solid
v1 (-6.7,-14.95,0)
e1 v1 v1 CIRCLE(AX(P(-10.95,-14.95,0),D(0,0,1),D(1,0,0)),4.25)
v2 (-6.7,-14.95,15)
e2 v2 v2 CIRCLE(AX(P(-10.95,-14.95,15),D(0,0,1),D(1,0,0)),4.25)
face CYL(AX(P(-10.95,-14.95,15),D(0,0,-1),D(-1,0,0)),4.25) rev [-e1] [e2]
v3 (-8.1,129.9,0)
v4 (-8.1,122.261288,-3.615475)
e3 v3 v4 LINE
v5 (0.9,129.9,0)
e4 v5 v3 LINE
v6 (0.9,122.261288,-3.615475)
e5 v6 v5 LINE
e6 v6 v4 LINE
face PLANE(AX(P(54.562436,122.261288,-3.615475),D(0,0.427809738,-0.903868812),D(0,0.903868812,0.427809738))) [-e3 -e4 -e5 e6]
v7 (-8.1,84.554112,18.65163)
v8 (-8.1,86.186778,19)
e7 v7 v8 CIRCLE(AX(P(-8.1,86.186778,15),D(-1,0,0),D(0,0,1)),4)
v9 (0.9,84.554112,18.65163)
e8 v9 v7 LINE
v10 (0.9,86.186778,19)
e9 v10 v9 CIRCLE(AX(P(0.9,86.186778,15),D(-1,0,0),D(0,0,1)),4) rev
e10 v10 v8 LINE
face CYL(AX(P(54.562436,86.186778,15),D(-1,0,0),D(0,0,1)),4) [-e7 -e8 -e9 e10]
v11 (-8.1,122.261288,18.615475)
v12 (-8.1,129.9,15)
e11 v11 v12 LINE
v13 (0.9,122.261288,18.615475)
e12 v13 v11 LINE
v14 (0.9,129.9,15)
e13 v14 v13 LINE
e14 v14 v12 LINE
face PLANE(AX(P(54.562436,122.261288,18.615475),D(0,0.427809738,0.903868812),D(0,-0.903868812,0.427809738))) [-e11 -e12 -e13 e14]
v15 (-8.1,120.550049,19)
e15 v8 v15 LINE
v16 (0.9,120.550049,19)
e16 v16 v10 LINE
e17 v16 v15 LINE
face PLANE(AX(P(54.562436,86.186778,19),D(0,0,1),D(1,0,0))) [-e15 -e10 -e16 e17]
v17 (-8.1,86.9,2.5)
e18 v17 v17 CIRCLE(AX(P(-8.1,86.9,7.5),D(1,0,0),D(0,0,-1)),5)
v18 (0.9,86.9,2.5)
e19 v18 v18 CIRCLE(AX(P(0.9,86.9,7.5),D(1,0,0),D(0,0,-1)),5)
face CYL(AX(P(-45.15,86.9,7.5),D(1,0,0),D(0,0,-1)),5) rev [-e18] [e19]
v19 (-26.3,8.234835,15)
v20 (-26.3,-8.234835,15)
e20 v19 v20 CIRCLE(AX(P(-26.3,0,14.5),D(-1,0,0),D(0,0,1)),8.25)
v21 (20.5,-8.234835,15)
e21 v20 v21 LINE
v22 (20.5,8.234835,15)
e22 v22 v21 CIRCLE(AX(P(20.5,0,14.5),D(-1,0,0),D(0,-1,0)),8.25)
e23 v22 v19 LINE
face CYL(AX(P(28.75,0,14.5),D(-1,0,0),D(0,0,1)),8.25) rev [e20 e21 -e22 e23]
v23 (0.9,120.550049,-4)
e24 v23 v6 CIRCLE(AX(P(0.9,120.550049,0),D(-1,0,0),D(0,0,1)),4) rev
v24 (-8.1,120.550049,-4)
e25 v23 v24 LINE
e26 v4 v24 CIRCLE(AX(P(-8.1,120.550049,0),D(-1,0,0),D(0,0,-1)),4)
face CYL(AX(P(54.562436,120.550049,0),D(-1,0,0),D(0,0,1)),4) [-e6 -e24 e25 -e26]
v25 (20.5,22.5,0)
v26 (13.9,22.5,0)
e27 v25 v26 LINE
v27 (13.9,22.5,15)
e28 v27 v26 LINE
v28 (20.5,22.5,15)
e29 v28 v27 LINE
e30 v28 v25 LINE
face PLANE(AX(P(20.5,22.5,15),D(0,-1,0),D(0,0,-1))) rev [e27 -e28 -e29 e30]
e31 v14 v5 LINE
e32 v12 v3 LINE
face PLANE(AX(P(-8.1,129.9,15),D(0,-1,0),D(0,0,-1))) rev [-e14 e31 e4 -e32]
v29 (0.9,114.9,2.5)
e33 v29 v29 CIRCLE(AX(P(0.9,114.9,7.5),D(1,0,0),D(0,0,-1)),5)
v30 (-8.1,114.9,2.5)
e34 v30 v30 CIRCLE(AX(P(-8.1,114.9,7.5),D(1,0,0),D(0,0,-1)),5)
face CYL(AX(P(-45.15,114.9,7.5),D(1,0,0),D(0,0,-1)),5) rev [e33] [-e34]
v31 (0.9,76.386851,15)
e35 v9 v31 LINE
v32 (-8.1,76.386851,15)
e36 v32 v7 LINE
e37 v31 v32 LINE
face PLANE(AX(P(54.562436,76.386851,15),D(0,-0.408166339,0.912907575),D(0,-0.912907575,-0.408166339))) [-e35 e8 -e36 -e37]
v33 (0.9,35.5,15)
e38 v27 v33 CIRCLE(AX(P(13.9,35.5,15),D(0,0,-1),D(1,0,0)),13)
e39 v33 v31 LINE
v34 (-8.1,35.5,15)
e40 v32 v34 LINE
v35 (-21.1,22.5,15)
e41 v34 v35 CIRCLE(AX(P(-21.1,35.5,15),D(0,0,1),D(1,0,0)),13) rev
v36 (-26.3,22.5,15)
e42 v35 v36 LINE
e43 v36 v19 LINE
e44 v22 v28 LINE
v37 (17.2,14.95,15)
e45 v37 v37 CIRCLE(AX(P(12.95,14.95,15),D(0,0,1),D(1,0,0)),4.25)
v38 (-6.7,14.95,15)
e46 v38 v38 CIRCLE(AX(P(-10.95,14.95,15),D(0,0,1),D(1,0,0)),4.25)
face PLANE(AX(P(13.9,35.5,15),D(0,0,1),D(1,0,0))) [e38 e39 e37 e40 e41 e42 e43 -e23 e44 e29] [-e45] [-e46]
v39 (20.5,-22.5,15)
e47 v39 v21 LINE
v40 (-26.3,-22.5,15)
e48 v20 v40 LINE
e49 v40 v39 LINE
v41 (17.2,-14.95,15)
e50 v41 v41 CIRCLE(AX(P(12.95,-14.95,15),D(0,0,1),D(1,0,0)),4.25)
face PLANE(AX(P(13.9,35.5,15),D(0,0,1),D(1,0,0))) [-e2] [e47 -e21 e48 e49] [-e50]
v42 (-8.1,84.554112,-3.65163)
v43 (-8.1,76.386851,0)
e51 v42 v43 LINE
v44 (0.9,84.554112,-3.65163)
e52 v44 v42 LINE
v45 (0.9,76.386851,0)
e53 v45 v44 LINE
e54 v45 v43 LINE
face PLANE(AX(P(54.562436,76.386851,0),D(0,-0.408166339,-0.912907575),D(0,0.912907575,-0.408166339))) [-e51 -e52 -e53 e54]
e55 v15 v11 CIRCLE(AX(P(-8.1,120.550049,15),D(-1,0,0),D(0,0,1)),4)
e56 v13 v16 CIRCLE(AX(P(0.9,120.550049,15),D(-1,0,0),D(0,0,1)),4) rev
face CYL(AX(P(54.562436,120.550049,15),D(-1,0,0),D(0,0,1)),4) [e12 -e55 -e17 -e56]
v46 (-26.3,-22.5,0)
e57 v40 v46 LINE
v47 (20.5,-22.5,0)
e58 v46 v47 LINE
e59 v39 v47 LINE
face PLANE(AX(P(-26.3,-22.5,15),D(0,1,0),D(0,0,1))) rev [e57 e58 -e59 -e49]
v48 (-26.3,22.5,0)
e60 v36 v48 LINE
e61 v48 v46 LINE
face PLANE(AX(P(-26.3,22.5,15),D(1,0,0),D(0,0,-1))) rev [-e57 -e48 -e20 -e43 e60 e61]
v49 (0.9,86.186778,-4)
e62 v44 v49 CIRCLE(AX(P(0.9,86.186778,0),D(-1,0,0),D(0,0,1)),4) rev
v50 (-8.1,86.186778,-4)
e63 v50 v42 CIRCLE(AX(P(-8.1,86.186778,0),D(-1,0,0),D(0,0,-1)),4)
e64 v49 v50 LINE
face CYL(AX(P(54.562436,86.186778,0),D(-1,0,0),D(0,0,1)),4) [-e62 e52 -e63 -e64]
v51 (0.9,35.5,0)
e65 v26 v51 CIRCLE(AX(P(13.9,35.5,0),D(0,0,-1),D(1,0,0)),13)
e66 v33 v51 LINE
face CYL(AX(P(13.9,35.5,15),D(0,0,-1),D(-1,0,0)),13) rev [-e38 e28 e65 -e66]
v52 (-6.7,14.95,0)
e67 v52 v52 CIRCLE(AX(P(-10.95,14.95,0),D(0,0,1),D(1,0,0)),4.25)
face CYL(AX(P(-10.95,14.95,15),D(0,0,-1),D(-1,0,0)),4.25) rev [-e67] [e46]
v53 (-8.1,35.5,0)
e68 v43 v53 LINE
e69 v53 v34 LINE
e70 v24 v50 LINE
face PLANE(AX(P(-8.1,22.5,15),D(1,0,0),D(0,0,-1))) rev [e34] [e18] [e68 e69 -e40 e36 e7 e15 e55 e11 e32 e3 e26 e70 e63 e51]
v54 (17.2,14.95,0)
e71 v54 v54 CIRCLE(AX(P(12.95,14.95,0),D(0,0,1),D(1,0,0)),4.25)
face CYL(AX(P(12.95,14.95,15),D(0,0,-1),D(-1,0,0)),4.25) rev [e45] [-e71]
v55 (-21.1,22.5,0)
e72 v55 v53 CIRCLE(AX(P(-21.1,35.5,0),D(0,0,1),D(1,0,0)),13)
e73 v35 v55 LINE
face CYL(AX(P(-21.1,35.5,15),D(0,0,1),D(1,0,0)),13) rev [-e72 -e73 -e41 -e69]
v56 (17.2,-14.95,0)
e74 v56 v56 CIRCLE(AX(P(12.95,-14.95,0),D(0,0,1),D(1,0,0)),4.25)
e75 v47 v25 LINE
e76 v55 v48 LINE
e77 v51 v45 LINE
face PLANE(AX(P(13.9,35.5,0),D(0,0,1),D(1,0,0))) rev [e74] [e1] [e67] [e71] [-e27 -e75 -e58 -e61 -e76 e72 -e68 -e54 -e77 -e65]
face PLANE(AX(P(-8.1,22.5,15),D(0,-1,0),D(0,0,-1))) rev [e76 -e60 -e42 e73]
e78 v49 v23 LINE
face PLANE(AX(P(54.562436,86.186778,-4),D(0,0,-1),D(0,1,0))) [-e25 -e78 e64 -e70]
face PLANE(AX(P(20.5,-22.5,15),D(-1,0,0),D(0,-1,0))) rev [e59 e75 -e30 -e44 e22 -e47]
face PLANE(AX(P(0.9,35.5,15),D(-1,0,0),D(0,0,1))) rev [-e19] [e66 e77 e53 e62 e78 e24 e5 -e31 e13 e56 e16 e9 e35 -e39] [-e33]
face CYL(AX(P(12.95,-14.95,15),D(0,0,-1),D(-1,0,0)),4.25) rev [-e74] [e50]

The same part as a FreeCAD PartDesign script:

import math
import FreeCAD as App
import Part
import Sketcher
from FreeCAD import Vector
Q = App.Units.Quantity


def edges_at(feature, points):
    """Names of the edges that pass closest to the given points."""
    edges = feature.Shape.Edges
    near = lambda p: min(range(len(edges)), key=lambda i: edges[i].distToShape(Part.Vertex(*p))[0])
    return sorted({f"Edge{near(p) + 1}" for p in points})

doc = App.newDocument("Part")
body = doc.addObject("PartDesign::Body", "Body")

# Sketch on XY plane
sketch1 = body.newObject("Sketcher::SketchObject", "Sketch")
sketch1.AttachmentSupport = (doc.getObject("XY_Plane"), [""])
sketch1.MapMode = "FlatFace"
sketch1.addGeometry(Part.LineSegment(Vector(-8.1, 129.9, 0), Vector(-8.1, 22.5, 0)), False)
sketch1.addGeometry(Part.LineSegment(Vector(-8.1, 22.5, 0), Vector(-26.3, 22.5, 0)), False)
sketch1.addGeometry(Part.LineSegment(Vector(-26.3, 22.5, 0), Vector(-26.3, -22.5, 0)), False)
sketch1.addGeometry(Part.LineSegment(Vector(-26.3, -22.5, 0), Vector(20.5, -22.5, 0)), False)
sketch1.addGeometry(Part.LineSegment(Vector(20.5, -22.5, 0), Vector(20.5, 22.5, 0)), False)
sketch1.addGeometry(Part.LineSegment(Vector(20.5, 22.5, 0), Vector(13.9, 22.5, 0)), False)
sketch1.addGeometry(Part.ArcOfCircle(Part.Circle(Vector(13.9, 35.5, 0), Vector(0, 0, 1), 13), math.radians(-180), math.radians(-90)), False)
sketch1.addGeometry(Part.LineSegment(Vector(0.9, 35.5, 0), Vector(0.9, 129.9, 0)), False)
sketch1.addGeometry(Part.LineSegment(Vector(0.9, 129.9, 0), Vector(-8.1, 129.9, 0)), False)
sketch1.addGeometry(Part.Circle(Vector(12.95, -14.95, 0), Vector(0, 0, 1), 4.25), False)
sketch1.addGeometry(Part.Circle(Vector(-10.95, -14.95, 0), Vector(0, 0, 1), 4.25), False)
sketch1.addGeometry(Part.Circle(Vector(12.95, 14.95, 0), Vector(0, 0, 1), 4.25), False)
sketch1.addGeometry(Part.Circle(Vector(-10.95, 14.95, 0), Vector(0, 0, 1), 4.25), False)
sketch1.addConstraint(Sketcher.Constraint("Coincident", 0, 2, 1, 1))
sketch1.addConstraint(Sketcher.Constraint("Coincident", 1, 2, 2, 1))
sketch1.addConstraint(Sketcher.Constraint("Coincident", 2, 2, 3, 1))
sketch1.addConstraint(Sketcher.Constraint("Coincident", 3, 2, 4, 1))
sketch1.addConstraint(Sketcher.Constraint("Coincident", 4, 2, 5, 1))
sketch1.addConstraint(Sketcher.Constraint("Tangent", 5, 2, 6, 2))
sketch1.addConstraint(Sketcher.Constraint("Tangent", 6, 1, 7, 1))
sketch1.addConstraint(Sketcher.Constraint("Coincident", 7, 2, 8, 1))
sketch1.addConstraint(Sketcher.Constraint("Coincident", 8, 2, 0, 1))
sketch1.addConstraint(Sketcher.Constraint("Vertical", 0))
sketch1.addConstraint(Sketcher.Constraint("Horizontal", 1))
sketch1.addConstraint(Sketcher.Constraint("Vertical", 2))
sketch1.addConstraint(Sketcher.Constraint("Horizontal", 3))
sketch1.addConstraint(Sketcher.Constraint("Vertical", 4))
sketch1.addConstraint(Sketcher.Constraint("Horizontal", 5))
sketch1.addConstraint(Sketcher.Constraint("Vertical", 7))
sketch1.addConstraint(Sketcher.Constraint("Horizontal", 8))
sketch1.addConstraint(Sketcher.Constraint("Equal", 9, 10))
sketch1.addConstraint(Sketcher.Constraint("Equal", 10, 11))
sketch1.addConstraint(Sketcher.Constraint("Equal", 11, 12))
sketch1.addConstraint(Sketcher.Constraint("Symmetric", 9, 3, 11, 3, -1))
sketch1.addConstraint(Sketcher.Constraint("Symmetric", 10, 3, 12, 3, -1))
sketch1.addConstraint(Sketcher.Constraint("Horizontal", 9, 3, 10, 3))
sketch1.addConstraint(Sketcher.Constraint("Horizontal", 1, 2, 4, 2))
sketch1.addConstraint(Sketcher.Constraint("Radius", 6, Q("13 mm")))
sketch1.addConstraint(Sketcher.Constraint("Diameter", 9, Q("8.5 mm")))
sketch1.addConstraint(Sketcher.Constraint("DistanceX", 8, 2, 8, 1, Q("9 mm")))
sketch1.addConstraint(Sketcher.Constraint("DistanceY", 2, 2, 2, 1, Q("45 mm")))
sketch1.addConstraint(Sketcher.Constraint("DistanceX", 1, 2, 1, 1, Q("18.2 mm")))
sketch1.addConstraint(Sketcher.Constraint("DistanceX", 3, 1, 3, 2, Q("46.8 mm")))
sketch1.addConstraint(Sketcher.Constraint("DistanceY", 0, 2, 0, 1, Q("107.4 mm")))
sketch1.addConstraint(Sketcher.Constraint("DistanceX", -1, 1, 6, 3, Q("13.9 mm")))
sketch1.addConstraint(Sketcher.Constraint("DistanceY", -1, 1, 6, 3, Q("35.5 mm")))
sketch1.addConstraint(Sketcher.Constraint("DistanceX", 10, 3, 9, 3, Q("23.9 mm")))
sketch1.addConstraint(Sketcher.Constraint("DistanceY", 9, 3, 11, 3, Q("29.9 mm")))
sketch1.addConstraint(Sketcher.Constraint("DistanceX", -1, 1, 9, 3, Q("12.95 mm")))
pad1 = body.newObject("PartDesign::Pad", "Pad")
pad1.Profile = sketch1
pad1.Length = 15

# Sketch on YZ plane
sketch2 = body.newObject("Sketcher::SketchObject", "Sketch001")
sketch2.AttachmentSupport = (doc.getObject("YZ_Plane"), [""])
sketch2.MapMode = "FlatFace"
sketch2.AttachmentOffset = App.Placement(Vector(0, 0, -26.3), App.Rotation())
sketch2.addGeometry(Part.Circle(Vector(0, 14.5, 0), Vector(0, 0, 1), 8.25), False)
sketch2.addConstraint(Sketcher.Constraint("PointOnObject", 0, 3, -2))
sketch2.addConstraint(Sketcher.Constraint("Diameter", 0, Q("16.5 mm")))
sketch2.addConstraint(Sketcher.Constraint("DistanceY", -1, 1, 0, 3, Q("14.5 mm")))
pocket1 = body.newObject("PartDesign::Pocket", "Pocket")
pocket1.Profile = sketch2
pocket1.Length = 55.05
pocket1.Reversed = True

# Sketch on YZ plane
sketch3 = body.newObject("Sketcher::SketchObject", "Sketch002")
sketch3.AttachmentSupport = (doc.getObject("YZ_Plane"), [""])
sketch3.MapMode = "FlatFace"
sketch3.AttachmentOffset = App.Placement(Vector(0, 0, 0.9), App.Rotation())
sketch3.addGeometry(Part.Circle(Vector(86.9, 7.5, 0), Vector(0, 0, 1), 5), False)
sketch3.addGeometry(Part.Circle(Vector(114.9, 7.5, 0), Vector(0, 0, 1), 5), False)
sketch3.addConstraint(Sketcher.Constraint("Equal", 0, 1))
sketch3.addConstraint(Sketcher.Constraint("Horizontal", 0, 3, 1, 3))
sketch3.addConstraint(Sketcher.Constraint("Diameter", 0, Q("10 mm")))
sketch3.addConstraint(Sketcher.Constraint("DistanceX", 0, 3, 1, 3, Q("28 mm")))
sketch3.addConstraint(Sketcher.Constraint("DistanceX", -1, 1, 0, 3, Q("86.9 mm")))
sketch3.addConstraint(Sketcher.Constraint("DistanceY", -1, 1, 0, 3, Q("7.5 mm")))
pocket2 = body.newObject("PartDesign::Pocket", "Pocket001")
pocket2.Profile = sketch3
pocket2.Length = 46.05

# Sketch on YZ plane
sketch4 = body.newObject("Sketcher::SketchObject", "Sketch003")
sketch4.AttachmentSupport = (doc.getObject("YZ_Plane"), [""])
sketch4.MapMode = "FlatFace"
sketch4.AttachmentOffset = App.Placement(Vector(0, 0, -8.1), App.Rotation())
sketch4.addGeometry(Part.LineSegment(Vector(76.386851, 15, 0), Vector(84.554112, 18.65163, 0)), False)
sketch4.addGeometry(Part.ArcOfCircle(Part.Circle(Vector(86.186778, 15, 0), Vector(0, 0, 1), 4), math.radians(90), math.radians(114.089699)), False)
sketch4.addGeometry(Part.LineSegment(Vector(86.186778, 19, 0), Vector(120.550049, 19, 0)), False)
sketch4.addGeometry(Part.ArcOfCircle(Part.Circle(Vector(120.550049, 15, 0), Vector(0, 0, 1), 4), math.radians(64.671359), math.radians(90)), False)
sketch4.addGeometry(Part.LineSegment(Vector(122.261288, 18.615475, 0), Vector(129.9, 15, 0)), False)
sketch4.addGeometry(Part.LineSegment(Vector(129.9, 15, 0), Vector(76.386851, 15, 0)), False)
sketch4.addGeometry(Part.LineSegment(Vector(129.9, 0, 0), Vector(122.261288, -3.615475, 0)), False)
sketch4.addGeometry(Part.ArcOfCircle(Part.Circle(Vector(120.550049, 0, 0), Vector(0, 0, 1), 4), math.radians(-90), math.radians(-64.671359)), False)
sketch4.addGeometry(Part.LineSegment(Vector(120.550049, -4, 0), Vector(86.186778, -4, 0)), False)
sketch4.addGeometry(Part.ArcOfCircle(Part.Circle(Vector(86.186778, 0, 0), Vector(0, 0, 1), 4), math.radians(-114.089699), math.radians(-90)), False)
sketch4.addGeometry(Part.LineSegment(Vector(84.554112, -3.65163, 0), Vector(76.386851, 0, 0)), False)
sketch4.addGeometry(Part.LineSegment(Vector(76.386851, 0, 0), Vector(129.9, 0, 0)), False)
sketch4.addConstraint(Sketcher.Constraint("Tangent", 0, 2, 1, 2))
sketch4.addConstraint(Sketcher.Constraint("Tangent", 1, 1, 2, 1))
sketch4.addConstraint(Sketcher.Constraint("Tangent", 2, 2, 3, 2))
sketch4.addConstraint(Sketcher.Constraint("Tangent", 3, 1, 4, 1))
sketch4.addConstraint(Sketcher.Constraint("Coincident", 4, 2, 5, 1))
sketch4.addConstraint(Sketcher.Constraint("Coincident", 5, 2, 0, 1))
sketch4.addConstraint(Sketcher.Constraint("Tangent", 6, 2, 7, 2))
sketch4.addConstraint(Sketcher.Constraint("Tangent", 7, 1, 8, 1))
sketch4.addConstraint(Sketcher.Constraint("Tangent", 8, 2, 9, 2))
sketch4.addConstraint(Sketcher.Constraint("Tangent", 9, 1, 10, 1))
sketch4.addConstraint(Sketcher.Constraint("Coincident", 10, 2, 11, 1))
sketch4.addConstraint(Sketcher.Constraint("Coincident", 11, 2, 6, 1))
sketch4.addConstraint(Sketcher.Constraint("Horizontal", 2))
sketch4.addConstraint(Sketcher.Constraint("Horizontal", 5))
sketch4.addConstraint(Sketcher.Constraint("Horizontal", 8))
sketch4.addConstraint(Sketcher.Constraint("Horizontal", 11))
sketch4.addConstraint(Sketcher.Constraint("Equal", 1, 3))
sketch4.addConstraint(Sketcher.Constraint("Equal", 3, 7))
sketch4.addConstraint(Sketcher.Constraint("Equal", 7, 9))
sketch4.addConstraint(Sketcher.Constraint("PointOnObject", 7, 3, -1))
sketch4.addConstraint(Sketcher.Constraint("PointOnObject", 10, 2, -1))
sketch4.addConstraint(Sketcher.Constraint("Horizontal", 3, 3, 4, 2))
sketch4.addConstraint(Sketcher.Constraint("Vertical", 3, 3, 7, 3))
sketch4.addConstraint(Sketcher.Constraint("Vertical", 1, 3, 9, 3))
sketch4.addConstraint(Sketcher.Constraint("Vertical", 3, 1, 6, 2))
sketch4.addConstraint(Sketcher.Constraint("Vertical", 0, 2, 9, 1))
sketch4.addConstraint(Sketcher.Constraint("Radius", 1, Q("4 mm")))
sketch4.addConstraint(Sketcher.Constraint("DistanceY", -1, 1, 1, 3, Q("15 mm")))
sketch4.addConstraint(Sketcher.Constraint("DistanceX", -1, 1, 4, 2, Q("129.9 mm")))
sketch4.addConstraint(Sketcher.Constraint("DistanceX", 2, 1, 2, 2, Q("34.363272 mm")))
sketch4.addConstraint(Sketcher.Constraint("DistanceX", 5, 2, 5, 1, Q("53.513149 mm")))
sketch4.addConstraint(Sketcher.Constraint("Distance", 4, Q("8.451129 mm")))
pad2 = body.newObject("PartDesign::Pad", "Pad001")
pad2.Profile = sketch4
pad2.Length = 9
doc.recompute()

fillet = body.newObject("PartDesign::Fillet", "Fillet")
fillet.Base = (pad2, edges_at(pad2, [(-8.1, 22.5, 7.5)]))
fillet.Radius = 13

doc.recompute()
